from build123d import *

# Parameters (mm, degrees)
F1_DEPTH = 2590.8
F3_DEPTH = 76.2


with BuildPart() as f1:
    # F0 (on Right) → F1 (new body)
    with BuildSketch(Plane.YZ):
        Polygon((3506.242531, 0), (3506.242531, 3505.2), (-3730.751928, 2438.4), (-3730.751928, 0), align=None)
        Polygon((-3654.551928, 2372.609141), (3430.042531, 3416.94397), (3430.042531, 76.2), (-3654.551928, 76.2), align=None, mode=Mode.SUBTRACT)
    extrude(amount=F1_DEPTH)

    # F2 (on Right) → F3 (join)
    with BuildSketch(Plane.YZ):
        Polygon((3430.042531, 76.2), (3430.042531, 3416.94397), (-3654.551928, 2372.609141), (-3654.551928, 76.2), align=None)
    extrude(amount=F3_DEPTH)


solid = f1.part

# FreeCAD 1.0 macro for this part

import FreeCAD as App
import Part
import Sketcher
from FreeCAD import Vector
Q = App.Units.Quantity

doc = App.newDocument("Part")
params = doc.addObject("Spreadsheet::Sheet", "Params")
for row, (alias, value) in enumerate([
    ("sketch1_height", "138 in"),
    ("sketch1_height2", "96 in"),
    ("sketch1_length", "288 in"),
    ("pad1_length", "102 in"),
    ("pad2_length", "3 in"),
], start=1):
    params.set(f"A{row}", alias)
    params.set(f"B{row}", "=" + value)
    params.setAlias(f"B{row}", alias)

body = doc.addObject("PartDesign::Body", "Body")

sketch1 = body.newObject("Sketcher::SketchObject", "Sketch")
sketch1.AttachmentSupport = (doc.getObject("YZ_Plane"), [""])
sketch1.MapMode = "FlatFace"
sketch1.addGeometry([
    Part.LineSegment(Vector(3506, 0, 0), Vector(3506, 3505, 0)),
    Part.LineSegment(Vector(3506, 3505, 0), Vector(-3731, 2438, 0)),
    Part.LineSegment(Vector(-3731, 2438, 0), Vector(-3731, 0, 0)),
    Part.LineSegment(Vector(-3731, 0, 0), Vector(3506, 0, 0)),
    Part.LineSegment(Vector(-3655, 76, 0), Vector(-3655, 2373, 0)),
    Part.LineSegment(Vector(-3655, 2373, 0), Vector(3430, 3417, 0)),
    Part.LineSegment(Vector(3430, 3417, 0), Vector(3430, 76, 0)),
    Part.LineSegment(Vector(3430, 76, 0), Vector(-3655, 76, 0)),
], False)
sketch1.addConstraint([
    Sketcher.Constraint("Coincident", 0, 2, 1, 1),
    Sketcher.Constraint("Coincident", 1, 2, 2, 1),
    Sketcher.Constraint("Coincident", 2, 2, 3, 1),
    Sketcher.Constraint("Coincident", 3, 2, 0, 1),
    Sketcher.Constraint("Coincident", 4, 2, 5, 1),
    Sketcher.Constraint("Coincident", 5, 2, 6, 1),
    Sketcher.Constraint("Coincident", 6, 2, 7, 1),
    Sketcher.Constraint("Coincident", 7, 2, 4, 1),
    Sketcher.Constraint("Vertical", 0),
    Sketcher.Constraint("Vertical", 2),
    Sketcher.Constraint("Horizontal", 3),
    Sketcher.Constraint("Vertical", 4),
    Sketcher.Constraint("Vertical", 6),
    Sketcher.Constraint("Horizontal", 7),
    Sketcher.Constraint("PointOnObject", 2, 2, -1),
    Sketcher.Constraint("Parallel", 1, 5),
    Sketcher.Constraint("DistanceY", 0, 1, 0, 2, Q("138 in")),
    Sketcher.Constraint("DistanceY", 2, 2, 2, 1, Q("96 in")),
    Sketcher.Constraint("Distance", 1, Q("288 in")),
    Sketcher.Constraint("DistanceY", -1, 1, 6, 2, Q("3 in")),
    Sketcher.Constraint("DistanceX", 1, 2, 4, 2, Q("3 in")),
    Sketcher.Constraint("DistanceX", 5, 2, 0, 2, Q("3 in")),
    Sketcher.Constraint("DistanceY", 4, 1, 4, 2, Q("2296.409141 mm")),
    Sketcher.Constraint("DistanceX", -1, 1, 0, 2, Q("3506.242531 mm")),
])
sketch1.setExpression("Constraints[16]", "Params.sketch1_height")
sketch1.setExpression("Constraints[17]", "Params.sketch1_height2")
sketch1.setExpression("Constraints[18]", "Params.sketch1_length")
pad1 = body.newObject("PartDesign::Pad", "Pad")
pad1.Profile = sketch1
pad1.setExpression("Length", "Params.pad1_length")

sketch2 = body.newObject("Sketcher::SketchObject", "Sketch001")
sketch2.AttachmentSupport = (doc.getObject("YZ_Plane"), [""])
sketch2.MapMode = "FlatFace"
sketch2.addGeometry([
    Part.LineSegment(Vector(3430, 76, 0), Vector(3430, 3417, 0)),
    Part.LineSegment(Vector(3430, 3417, 0), Vector(-3655, 2373, 0)),
    Part.LineSegment(Vector(-3655, 2373, 0), Vector(-3655, 76, 0)),
    Part.LineSegment(Vector(-3655, 76, 0), Vector(3430, 76, 0)),
], False)
sketch2.addConstraint([
    Sketcher.Constraint("Coincident", 0, 2, 1, 1),
    Sketcher.Constraint("Coincident", 1, 2, 2, 1),
    Sketcher.Constraint("Coincident", 2, 2, 3, 1),
    Sketcher.Constraint("Coincident", 3, 2, 0, 1),
    Sketcher.Constraint("Vertical", 0),
    Sketcher.Constraint("Vertical", 2),
    Sketcher.Constraint("Horizontal", 3),
    Sketcher.Constraint("DistanceY", -1, 1, 2, 2, Q("3 in")),
    Sketcher.Constraint("DistanceX", 3, 1, 3, 2, Q("7084.594459 mm")),
    Sketcher.Constraint("DistanceY", 0, 1, 0, 2, Q("3340.74397 mm")),
    Sketcher.Constraint("DistanceY", 2, 2, 2, 1, Q("2296.409141 mm")),
    Sketcher.Constraint("DistanceX", -1, 1, 0, 2, Q("3430.042531 mm")),
])
pad2 = body.newObject("PartDesign::Pad", "Pad001")
pad2.Profile = sketch2
pad2.setExpression("Length", "Params.pad2_length")

doc.recompute()
